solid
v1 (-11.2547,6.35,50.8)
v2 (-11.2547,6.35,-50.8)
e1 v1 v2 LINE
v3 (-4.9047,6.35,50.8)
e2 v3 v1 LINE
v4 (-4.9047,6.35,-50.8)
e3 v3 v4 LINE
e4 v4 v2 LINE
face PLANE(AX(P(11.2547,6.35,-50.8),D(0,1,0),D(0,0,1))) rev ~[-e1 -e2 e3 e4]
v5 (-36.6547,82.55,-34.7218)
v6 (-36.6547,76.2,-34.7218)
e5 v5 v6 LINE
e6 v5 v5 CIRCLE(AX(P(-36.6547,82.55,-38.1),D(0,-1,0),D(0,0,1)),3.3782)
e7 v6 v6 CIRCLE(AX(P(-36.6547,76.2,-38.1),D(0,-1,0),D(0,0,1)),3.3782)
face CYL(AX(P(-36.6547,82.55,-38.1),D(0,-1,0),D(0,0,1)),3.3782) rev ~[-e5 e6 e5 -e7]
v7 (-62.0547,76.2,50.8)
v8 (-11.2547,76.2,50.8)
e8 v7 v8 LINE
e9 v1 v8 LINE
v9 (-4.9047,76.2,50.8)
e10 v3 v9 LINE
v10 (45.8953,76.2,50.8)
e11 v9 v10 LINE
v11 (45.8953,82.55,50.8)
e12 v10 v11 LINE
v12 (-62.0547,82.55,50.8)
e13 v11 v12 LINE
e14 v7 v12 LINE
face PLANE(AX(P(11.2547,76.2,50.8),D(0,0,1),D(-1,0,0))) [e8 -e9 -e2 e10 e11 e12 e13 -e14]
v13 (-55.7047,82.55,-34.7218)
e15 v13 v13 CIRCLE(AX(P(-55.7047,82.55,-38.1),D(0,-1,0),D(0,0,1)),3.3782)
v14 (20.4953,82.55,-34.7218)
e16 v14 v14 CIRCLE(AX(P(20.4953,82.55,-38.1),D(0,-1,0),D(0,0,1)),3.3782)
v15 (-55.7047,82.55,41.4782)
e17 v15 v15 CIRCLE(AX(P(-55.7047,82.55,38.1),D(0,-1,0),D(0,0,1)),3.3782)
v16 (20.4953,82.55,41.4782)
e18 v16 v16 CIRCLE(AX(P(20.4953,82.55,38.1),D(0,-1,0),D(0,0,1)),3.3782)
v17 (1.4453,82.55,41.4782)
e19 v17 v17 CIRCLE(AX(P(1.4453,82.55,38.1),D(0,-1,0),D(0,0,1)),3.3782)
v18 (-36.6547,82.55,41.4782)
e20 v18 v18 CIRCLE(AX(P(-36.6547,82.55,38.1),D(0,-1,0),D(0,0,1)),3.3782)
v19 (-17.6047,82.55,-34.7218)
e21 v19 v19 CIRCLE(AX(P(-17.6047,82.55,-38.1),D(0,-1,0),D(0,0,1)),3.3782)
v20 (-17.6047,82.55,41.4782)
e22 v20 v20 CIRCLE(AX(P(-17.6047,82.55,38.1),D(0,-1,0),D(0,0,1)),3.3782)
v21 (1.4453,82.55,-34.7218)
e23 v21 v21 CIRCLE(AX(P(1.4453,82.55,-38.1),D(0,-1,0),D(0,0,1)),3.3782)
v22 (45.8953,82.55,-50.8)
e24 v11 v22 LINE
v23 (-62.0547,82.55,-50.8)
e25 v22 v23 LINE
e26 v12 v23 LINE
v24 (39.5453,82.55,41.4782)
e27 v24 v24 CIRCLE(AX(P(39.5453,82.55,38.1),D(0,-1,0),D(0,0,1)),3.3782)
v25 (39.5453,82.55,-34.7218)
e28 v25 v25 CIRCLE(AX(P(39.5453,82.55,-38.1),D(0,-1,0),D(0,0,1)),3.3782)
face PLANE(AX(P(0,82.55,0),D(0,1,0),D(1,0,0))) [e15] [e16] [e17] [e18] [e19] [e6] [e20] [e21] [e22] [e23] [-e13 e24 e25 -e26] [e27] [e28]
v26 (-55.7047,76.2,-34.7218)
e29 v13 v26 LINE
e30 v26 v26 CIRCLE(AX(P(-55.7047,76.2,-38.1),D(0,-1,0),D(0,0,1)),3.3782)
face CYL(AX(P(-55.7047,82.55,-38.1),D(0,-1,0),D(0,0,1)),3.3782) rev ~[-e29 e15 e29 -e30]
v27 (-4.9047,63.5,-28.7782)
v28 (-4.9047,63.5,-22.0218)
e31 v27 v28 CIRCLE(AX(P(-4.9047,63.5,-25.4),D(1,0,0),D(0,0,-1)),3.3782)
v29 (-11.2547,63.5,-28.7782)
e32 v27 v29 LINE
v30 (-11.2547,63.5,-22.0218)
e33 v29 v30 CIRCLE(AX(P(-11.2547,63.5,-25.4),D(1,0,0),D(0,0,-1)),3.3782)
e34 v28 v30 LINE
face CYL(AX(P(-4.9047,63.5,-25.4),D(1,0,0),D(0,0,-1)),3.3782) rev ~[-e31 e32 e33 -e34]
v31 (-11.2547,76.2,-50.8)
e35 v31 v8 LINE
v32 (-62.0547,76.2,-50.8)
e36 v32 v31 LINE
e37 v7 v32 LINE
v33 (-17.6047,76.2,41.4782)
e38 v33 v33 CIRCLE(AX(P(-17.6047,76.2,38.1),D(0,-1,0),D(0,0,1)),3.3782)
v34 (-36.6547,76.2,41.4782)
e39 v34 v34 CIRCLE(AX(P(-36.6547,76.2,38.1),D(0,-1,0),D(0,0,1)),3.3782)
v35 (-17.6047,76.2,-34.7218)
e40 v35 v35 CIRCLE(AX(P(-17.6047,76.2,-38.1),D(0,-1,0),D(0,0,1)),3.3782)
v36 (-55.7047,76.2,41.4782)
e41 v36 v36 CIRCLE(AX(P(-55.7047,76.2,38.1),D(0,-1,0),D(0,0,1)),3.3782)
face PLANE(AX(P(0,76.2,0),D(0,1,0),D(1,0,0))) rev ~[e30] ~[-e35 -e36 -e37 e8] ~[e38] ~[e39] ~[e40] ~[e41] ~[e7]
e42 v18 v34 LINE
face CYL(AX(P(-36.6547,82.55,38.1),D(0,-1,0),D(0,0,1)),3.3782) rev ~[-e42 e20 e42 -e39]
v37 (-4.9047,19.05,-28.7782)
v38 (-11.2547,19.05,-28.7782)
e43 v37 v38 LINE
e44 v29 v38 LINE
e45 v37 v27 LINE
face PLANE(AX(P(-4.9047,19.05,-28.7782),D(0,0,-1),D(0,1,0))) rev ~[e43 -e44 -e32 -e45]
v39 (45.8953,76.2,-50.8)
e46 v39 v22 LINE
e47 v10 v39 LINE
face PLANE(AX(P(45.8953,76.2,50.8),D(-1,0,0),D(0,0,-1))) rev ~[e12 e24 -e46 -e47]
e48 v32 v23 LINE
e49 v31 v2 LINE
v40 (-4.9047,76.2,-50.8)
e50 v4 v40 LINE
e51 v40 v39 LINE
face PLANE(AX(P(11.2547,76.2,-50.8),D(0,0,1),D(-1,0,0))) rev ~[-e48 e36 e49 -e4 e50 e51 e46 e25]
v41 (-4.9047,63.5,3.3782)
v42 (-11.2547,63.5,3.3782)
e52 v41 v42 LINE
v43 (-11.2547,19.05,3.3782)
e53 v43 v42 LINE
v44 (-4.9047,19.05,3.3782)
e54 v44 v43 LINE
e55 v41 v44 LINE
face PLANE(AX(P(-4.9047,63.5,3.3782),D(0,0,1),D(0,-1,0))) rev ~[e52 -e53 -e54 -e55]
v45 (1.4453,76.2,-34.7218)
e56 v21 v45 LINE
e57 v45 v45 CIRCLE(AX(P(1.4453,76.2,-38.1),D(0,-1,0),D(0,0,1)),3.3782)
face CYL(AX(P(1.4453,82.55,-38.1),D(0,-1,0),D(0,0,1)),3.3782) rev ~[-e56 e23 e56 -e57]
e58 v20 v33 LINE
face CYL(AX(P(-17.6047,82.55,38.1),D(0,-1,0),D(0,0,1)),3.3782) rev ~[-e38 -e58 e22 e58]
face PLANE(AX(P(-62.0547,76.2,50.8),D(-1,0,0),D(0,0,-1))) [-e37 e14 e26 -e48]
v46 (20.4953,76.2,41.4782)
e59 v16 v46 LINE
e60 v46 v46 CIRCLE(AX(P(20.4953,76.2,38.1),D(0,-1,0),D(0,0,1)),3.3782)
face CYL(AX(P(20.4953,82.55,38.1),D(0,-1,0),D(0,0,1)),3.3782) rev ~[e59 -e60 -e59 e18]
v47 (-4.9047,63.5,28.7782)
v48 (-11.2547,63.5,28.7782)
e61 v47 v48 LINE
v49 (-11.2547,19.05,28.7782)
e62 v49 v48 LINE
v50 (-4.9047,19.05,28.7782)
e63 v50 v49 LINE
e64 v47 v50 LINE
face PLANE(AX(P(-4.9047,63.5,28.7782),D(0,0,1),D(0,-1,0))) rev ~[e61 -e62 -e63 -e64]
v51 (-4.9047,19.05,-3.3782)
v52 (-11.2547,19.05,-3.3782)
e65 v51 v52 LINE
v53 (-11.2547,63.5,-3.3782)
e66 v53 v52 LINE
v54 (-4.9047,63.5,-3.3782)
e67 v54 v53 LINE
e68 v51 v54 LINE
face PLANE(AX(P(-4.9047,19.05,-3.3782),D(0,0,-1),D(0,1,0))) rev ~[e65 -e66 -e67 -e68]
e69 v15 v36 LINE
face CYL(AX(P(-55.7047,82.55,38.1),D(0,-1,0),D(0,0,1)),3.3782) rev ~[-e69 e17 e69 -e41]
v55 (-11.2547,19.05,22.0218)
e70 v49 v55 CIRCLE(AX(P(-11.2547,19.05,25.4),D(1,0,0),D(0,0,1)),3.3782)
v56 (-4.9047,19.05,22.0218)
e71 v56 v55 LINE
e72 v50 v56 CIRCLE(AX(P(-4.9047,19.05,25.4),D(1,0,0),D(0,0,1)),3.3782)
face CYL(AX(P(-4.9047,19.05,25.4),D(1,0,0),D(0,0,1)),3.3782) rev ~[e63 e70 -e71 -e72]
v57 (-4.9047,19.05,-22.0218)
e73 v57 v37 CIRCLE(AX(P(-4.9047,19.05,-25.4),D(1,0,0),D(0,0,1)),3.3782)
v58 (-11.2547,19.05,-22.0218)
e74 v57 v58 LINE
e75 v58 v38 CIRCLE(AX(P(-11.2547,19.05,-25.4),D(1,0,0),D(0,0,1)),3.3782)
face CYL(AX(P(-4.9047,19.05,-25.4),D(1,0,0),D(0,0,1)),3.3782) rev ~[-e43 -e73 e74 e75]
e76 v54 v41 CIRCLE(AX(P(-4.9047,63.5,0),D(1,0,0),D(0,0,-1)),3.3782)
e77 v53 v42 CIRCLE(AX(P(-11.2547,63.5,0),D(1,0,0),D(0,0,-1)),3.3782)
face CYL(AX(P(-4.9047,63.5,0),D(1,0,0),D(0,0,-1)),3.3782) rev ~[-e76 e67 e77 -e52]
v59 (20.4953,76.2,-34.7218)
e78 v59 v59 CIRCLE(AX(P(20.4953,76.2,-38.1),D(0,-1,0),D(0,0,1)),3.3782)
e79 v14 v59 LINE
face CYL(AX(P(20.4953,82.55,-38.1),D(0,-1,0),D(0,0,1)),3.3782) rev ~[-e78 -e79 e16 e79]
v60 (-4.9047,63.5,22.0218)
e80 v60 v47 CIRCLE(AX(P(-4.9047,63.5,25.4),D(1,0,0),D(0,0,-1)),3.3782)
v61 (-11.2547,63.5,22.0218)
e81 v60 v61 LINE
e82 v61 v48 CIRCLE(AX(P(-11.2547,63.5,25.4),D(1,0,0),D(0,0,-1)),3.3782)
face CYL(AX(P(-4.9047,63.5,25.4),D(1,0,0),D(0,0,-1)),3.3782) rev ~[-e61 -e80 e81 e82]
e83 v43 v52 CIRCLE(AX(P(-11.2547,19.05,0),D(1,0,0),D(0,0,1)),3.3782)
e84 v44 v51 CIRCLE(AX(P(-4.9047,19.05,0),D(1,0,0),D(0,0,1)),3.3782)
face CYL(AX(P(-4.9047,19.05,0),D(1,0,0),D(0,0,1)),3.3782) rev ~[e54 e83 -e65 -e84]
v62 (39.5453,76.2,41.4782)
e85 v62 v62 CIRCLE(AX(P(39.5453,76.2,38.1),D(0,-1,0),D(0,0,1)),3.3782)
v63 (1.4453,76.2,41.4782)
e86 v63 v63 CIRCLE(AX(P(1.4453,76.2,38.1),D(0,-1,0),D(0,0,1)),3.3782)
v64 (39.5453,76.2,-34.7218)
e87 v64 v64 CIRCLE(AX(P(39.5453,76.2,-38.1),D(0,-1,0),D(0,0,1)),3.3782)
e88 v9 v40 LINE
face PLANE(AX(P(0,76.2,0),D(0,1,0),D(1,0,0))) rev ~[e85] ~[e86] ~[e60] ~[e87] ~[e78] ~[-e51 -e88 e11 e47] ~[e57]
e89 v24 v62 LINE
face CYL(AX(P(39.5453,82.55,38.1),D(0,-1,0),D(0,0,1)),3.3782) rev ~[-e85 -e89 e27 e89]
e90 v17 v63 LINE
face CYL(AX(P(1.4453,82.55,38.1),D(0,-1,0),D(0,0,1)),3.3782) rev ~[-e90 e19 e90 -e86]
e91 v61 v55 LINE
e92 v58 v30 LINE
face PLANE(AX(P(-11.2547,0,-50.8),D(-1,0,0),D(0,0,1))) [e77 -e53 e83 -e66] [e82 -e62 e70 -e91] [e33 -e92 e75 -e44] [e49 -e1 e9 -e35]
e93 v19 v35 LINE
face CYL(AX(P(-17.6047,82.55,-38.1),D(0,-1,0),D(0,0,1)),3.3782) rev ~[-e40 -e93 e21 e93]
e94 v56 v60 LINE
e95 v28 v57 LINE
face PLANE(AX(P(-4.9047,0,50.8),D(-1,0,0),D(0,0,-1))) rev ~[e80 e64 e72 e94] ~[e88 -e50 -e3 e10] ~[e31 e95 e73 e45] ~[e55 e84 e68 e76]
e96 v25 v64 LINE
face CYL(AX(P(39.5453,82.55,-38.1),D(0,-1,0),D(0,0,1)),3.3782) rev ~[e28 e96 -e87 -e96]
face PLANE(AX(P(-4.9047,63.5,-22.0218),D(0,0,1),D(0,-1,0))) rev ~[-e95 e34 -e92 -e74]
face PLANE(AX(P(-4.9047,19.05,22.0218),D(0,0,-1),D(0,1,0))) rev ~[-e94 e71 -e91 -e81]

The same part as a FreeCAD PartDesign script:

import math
import FreeCAD as App
import Part
import Sketcher
from FreeCAD import Vector
Q = App.Units.Quantity

doc = App.newDocument("Part")
body = doc.addObject("PartDesign::Body", "Body")

sketch1 = body.newObject("Sketcher::SketchObject", "Sketch")
sketch1.AttachmentSupport = (doc.getObject("XZ_Plane"), [""])
sketch1.MapMode = "FlatFace"
sketch1.addGeometry([
    Part.LineSegment(Vector(-11.2547, -50.8, 0), Vector(-11.2547, 50.8, 0)),
    Part.LineSegment(Vector(-11.2547, 50.8, 0), Vector(11.2547, 50.8, 0)),
    Part.LineSegment(Vector(11.2547, 50.8, 0), Vector(11.2547, -50.8, 0)),
    Part.LineSegment(Vector(11.2547, -50.8, 0), Vector(-11.2547, -50.8, 0)),
], False)
sketch1.addConstraint([
    Sketcher.Constraint("Coincident", 0, 2, 1, 1),
    Sketcher.Constraint("Coincident", 1, 2, 2, 1),
    Sketcher.Constraint("Coincident", 2, 2, 3, 1),
    Sketcher.Constraint("Coincident", 3, 2, 0, 1),
    Sketcher.Constraint("Vertical", 0),
    Sketcher.Constraint("Horizontal", 1),
    Sketcher.Constraint("Vertical", 2),
    Sketcher.Constraint("Horizontal", 3),
    Sketcher.Constraint("Symmetric", 0, 2, 2, 2, -1, 1),
    Sketcher.Constraint("DistanceY", 0, 1, 0, 2, Q("4 in")),
    Sketcher.Constraint("DistanceX", 1, 1, 1, 2, Q("0.8862 in")),
])
pad1 = body.newObject("PartDesign::Pad", "Pad")
pad1.Profile = sketch1
pad1.Length = Q("0.25 in")

sketch2 = body.newObject("Sketcher::SketchObject", "Sketch001")
sketch2.AttachmentSupport = (doc.getObject("XZ_Plane"), [""])
sketch2.MapMode = "FlatFace"
sketch2.addGeometry([
    Part.LineSegment(Vector(-11.2547, 50.8, 0), Vector(-4.9047, 50.8, 0)),
    Part.LineSegment(Vector(-4.9047, 50.8, 0), Vector(-4.9047, -50.8, 0)),
    Part.LineSegment(Vector(-4.9047, -50.8, 0), Vector(-11.2547, -50.8, 0)),
    Part.LineSegment(Vector(-11.2547, -50.8, 0), Vector(-11.2547, 50.8, 0)),
], False)
sketch2.addConstraint([
    Sketcher.Constraint("Coincident", 0, 2, 1, 1),
    Sketcher.Constraint("Coincident", 1, 2, 2, 1),
    Sketcher.Constraint("Coincident", 2, 2, 3, 1),
    Sketcher.Constraint("Coincident", 3, 2, 0, 1),
    Sketcher.Constraint("Horizontal", 0),
    Sketcher.Constraint("Vertical", 1),
    Sketcher.Constraint("Horizontal", 2),
    Sketcher.Constraint("Vertical", 3),
    Sketcher.Constraint("DistanceX", 0, 1, 0, 2, Q("0.25 in")),
    Sketcher.Constraint("DistanceY", 1, 2, 1, 1, Q("4 in")),
    Sketcher.Constraint("DistanceY", -1, 1, 0, 2, Q("2 in")),
    Sketcher.Constraint("DistanceX", 0, 2, -1, 1, Q("0.1931 in")),
])
pad2 = body.newObject("PartDesign::Pad", "Pad001")
pad2.Profile = sketch2
pad2.Length = Q("3 in")
pad2.Reversed = True

sketch3 = body.newObject("Sketcher::SketchObject", "Sketch002")
sketch3.AttachmentSupport = (doc.getObject("XZ_Plane"), [""])
sketch3.MapMode = "FlatFace"
sketch3.AttachmentOffset = App.Placement(Vector(0, 0, -3 * 25.4), App.Rotation())
sketch3.addGeometry([
    Part.LineSegment(Vector(45.8953, 50.8, 0), Vector(45.8953, -50.8, 0)),
    Part.LineSegment(Vector(45.8953, -50.8, 0), Vector(-62.0547, -50.8, 0)),
    Part.LineSegment(Vector(-62.0547, -50.8, 0), Vector(-62.0547, 50.8, 0)),
    Part.LineSegment(Vector(-62.0547, 50.8, 0), Vector(45.8953, 50.8, 0)),
], False)
sketch3.addConstraint([
    Sketcher.Constraint("Coincident", 0, 2, 1, 1),
    Sketcher.Constraint("Coincident", 1, 2, 2, 1),
    Sketcher.Constraint("Coincident", 2, 2, 3, 1),
    Sketcher.Constraint("Coincident", 3, 2, 0, 1),
    Sketcher.Constraint("Vertical", 0),
    Sketcher.Constraint("Horizontal", 1),
    Sketcher.Constraint("Vertical", 2),
    Sketcher.Constraint("Horizontal", 3),
    Sketcher.Constraint("DistanceY", 0, 2, -1, 1, Q("2 in")),
    Sketcher.Constraint("DistanceY", -1, 1, 2, 2, Q("2 in")),
    Sketcher.Constraint("DistanceX", 1, 2, 1, 1, Q("4.25 in")),
    Sketcher.Constraint("DistanceX", -1, 1, 0, 2, Q("1.8069 in")),
])
pad3 = body.newObject("PartDesign::Pad", "Pad002")
pad3.Profile = sketch3
pad3.Length = Q("0.25 in")
pad3.Reversed = True

sketch4 = body.newObject("Sketcher::SketchObject", "Sketch003")
sketch4.AttachmentSupport = (doc.getObject("XZ_Plane"), [""])
sketch4.MapMode = "FlatFace"
sketch4.addGeometry([
    Part.Circle(Vector(3.175, 38.1, 0), Vector(0, 0, 1), 2.5527),
    Part.Circle(Vector(3.175, 12.7, 0), Vector(0, 0, 1), 2.5527),
    Part.Circle(Vector(3.175, -12.7, 0), Vector(0, 0, 1), 2.5527),
    Part.Circle(Vector(3.175, -38.1, 0), Vector(0, 0, 1), 2.5527),
], False)
sketch4.addConstraint([
    Sketcher.Constraint("Equal", 0, 1),
    Sketcher.Constraint("Equal", 1, 2),
    Sketcher.Constraint("Equal", 2, 3),
    Sketcher.Constraint("Symmetric", 1, 3, 2, 3, -1),
    Sketcher.Constraint("Symmetric", 0, 3, 3, 3, -1),
    Sketcher.Constraint("Vertical", 0, 3, 1, 3),
    Sketcher.Constraint("Diameter", 0, Q("0.201 in")),
    Sketcher.Constraint("DistanceY", 1, 3, 0, 3, Q("1 in")),
    Sketcher.Constraint("DistanceY", 2, 3, 1, 3, Q("1 in")),
    Sketcher.Constraint("DistanceX", -1, 1, 0, 3, Q("0.125 in")),
])
doc.recompute()
hole = body.newObject("PartDesign::Hole", "Hole")
hole.Profile = sketch4
hole.ThreadType = "None"
hole.Diameter = Q("0.201 in")
hole.DepthType = "ThroughAll"
hole.Reversed = True

sketch5 = body.newObject("Sketcher::SketchObject", "Sketch004")
sketch5.AttachmentSupport = (doc.getObject("XZ_Plane"), [""])
sketch5.MapMode = "FlatFace"
sketch5.AttachmentOffset = App.Placement(Vector(0, 0, -3.25 * 25.4), App.Rotation())
sketch5.addGeometry([
    Part.Circle(Vector(-55.7047, 38.1, 0), Vector(0, 0, 1), 3.3782),
    Part.Circle(Vector(-55.7047, -38.1, 0), Vector(0, 0, 1), 3.3782),
    Part.Circle(Vector(-36.6547, 38.1, 0), Vector(0, 0, 1), 3.3782),
    Part.Circle(Vector(-36.6547, -38.1, 0), Vector(0, 0, 1), 3.3782),
    Part.Circle(Vector(-17.6047, 38.1, 0), Vector(0, 0, 1), 3.3782),
    Part.Circle(Vector(-17.6047, -38.1, 0), Vector(0, 0, 1), 3.3782),
    Part.Circle(Vector(1.4453, 38.1, 0), Vector(0, 0, 1), 3.3782),
    Part.Circle(Vector(1.4453, -38.1, 0), Vector(0, 0, 1), 3.3782),
    Part.Circle(Vector(20.4953, 38.1, 0), Vector(0, 0, 1), 3.3782),
    Part.Circle(Vector(20.4953, -38.1, 0), Vector(0, 0, 1), 3.3782),
    Part.Circle(Vector(39.5453, 38.1, 0), Vector(0, 0, 1), 3.3782),
    Part.Circle(Vector(39.5453, -38.1, 0), Vector(0, 0, 1), 3.3782),
    Part.Circle(Vector(58.5953, 38.1, 0), Vector(0, 0, 1), 3.3782),
    Part.Circle(Vector(58.5953, -38.1, 0), Vector(0, 0, 1), 3.3782),
], False)
sketch5.addConstraint([
    Sketcher.Constraint("Equal", 0, 1),
    Sketcher.Constraint("Equal", 1, 2),
    Sketcher.Constraint("Equal", 2, 3),
    Sketcher.Constraint("Equal", 3, 4),
    Sketcher.Constraint("Equal", 4, 5),
    Sketcher.Constraint("Equal", 5, 6),
    Sketcher.Constraint("Equal", 6, 7),
    Sketcher.Constraint("Equal", 7, 8),
    Sketcher.Constraint("Equal", 8, 9),
    Sketcher.Constraint("Equal", 9, 10),
    Sketcher.Constraint("Equal", 10, 11),
    Sketcher.Constraint("Equal", 11, 12),
    Sketcher.Constraint("Equal", 12, 13),
    Sketcher.Constraint("Symmetric", 0, 3, 1, 3, -1),
    Sketcher.Constraint("Symmetric", 2, 3, 3, 3, -1),
    Sketcher.Constraint("Symmetric", 4, 3, 5, 3, -1),
    Sketcher.Constraint("Symmetric", 6, 3, 7, 3, -1),
    Sketcher.Constraint("Symmetric", 8, 3, 9, 3, -1),
    Sketcher.Constraint("Symmetric", 10, 3, 11, 3, -1),
    Sketcher.Constraint("Symmetric", 12, 3, 13, 3, -1),
    Sketcher.Constraint("Horizontal", 0, 3, 2, 3),
    Sketcher.Constraint("Horizontal", 2, 3, 4, 3),
    Sketcher.Constraint("Horizontal", 4, 3, 6, 3),
    Sketcher.Constraint("Horizontal", 6, 3, 8, 3),
    Sketcher.Constraint("Horizontal", 8, 3, 10, 3),
    Sketcher.Constraint("Horizontal", 10, 3, 12, 3),
    Sketcher.Constraint("Diameter", 0, Q("0.266 in")),
    Sketcher.Constraint("DistanceY", 1, 3, 0, 3, Q("3 in")),
    Sketcher.Constraint("DistanceX", 0, 3, 8, 3, Q("3 in")),
    Sketcher.Constraint("DistanceX", 2, 3, 10, 3, Q("3 in")),
    Sketcher.Constraint("DistanceX", 4, 3, 12, 3, Q("3 in")),
    Sketcher.Constraint("DistanceX", 0, 3, 4, 3, Q("1.5 in")),
    Sketcher.Constraint("DistanceX", 2, 3, 6, 3, Q("1.5 in")),
    Sketcher.Constraint("DistanceX", 0, 3, 2, 3, Q("0.75 in")),
    Sketcher.Constraint("DistanceX", 0, 3, -1, 1, Q("2.1931 in")),
])
doc.recompute()
hole2 = body.newObject("PartDesign::Hole", "Hole001")
hole2.Profile = sketch5
hole2.ThreadType = "None"
hole2.Diameter = Q("0.266 in")
hole2.DepthType = "Dimension"
hole2.Depth = Q("0.25 in")
hole2.DrillPoint = "Flat"
hole2.Reversed = True

sketch6 = body.newObject("Sketcher::SketchObject", "Sketch005")
sketch6.AttachmentSupport = (doc.getObject("YZ_Plane"), [""])
sketch6.MapMode = "FlatFace"
sketch6.AttachmentOffset = App.Placement(Vector(0, 0, 0.4430984 * 25.4), App.Rotation())
sketch6.addGeometry([
    Part.LineSegment(Vector(-6.35, 50.8, 0), Vector(-6.35, -50.8, 0)),
    Part.LineSegment(Vector(-6.35, -50.8, 0), Vector(6.35, -50.8, 0)),
    Part.LineSegment(Vector(6.35, -50.8, 0), Vector(6.35, 50.8, 0)),
    Part.LineSegment(Vector(6.35, 50.8, 0), Vector(-6.35, 50.8, 0)),
], False)
sketch6.addConstraint([
    Sketcher.Constraint("Coincident", 0, 2, 1, 1),
    Sketcher.Constraint("Coincident", 1, 2, 2, 1),
    Sketcher.Constraint("Coincident", 2, 2, 3, 1),
    Sketcher.Constraint("Coincident", 3, 2, 0, 1),
    Sketcher.Constraint("Vertical", 0),
    Sketcher.Constraint("Horizontal", 1),
    Sketcher.Constraint("Vertical", 2),
    Sketcher.Constraint("Horizontal", 3),
    Sketcher.Constraint("Symmetric", 0, 2, 2, 2, -1, 1),
    Sketcher.Constraint("DistanceX", 1, 1, 1, 2, Q("0.5 in")),
    Sketcher.Constraint("DistanceY", 0, 2, 0, 1, Q("4 in")),
])
pocket1 = body.newObject("PartDesign::Pocket", "Pocket")
pocket1.Profile = sketch6
pocket1.Type = "ThroughAll"

sketch7 = body.newObject("Sketcher::SketchObject", "Sketch006")
sketch7.AttachmentSupport = (doc.getObject("YZ_Plane"), [""])
sketch7.MapMode = "FlatFace"
sketch7.AttachmentOffset = App.Placement(Vector(0, 0, -0.1930984 * 25.4), App.Rotation())
sketch7.addGeometry([
    Part.ArcOfCircle(Part.Circle(Vector(63.5, 25.4, 0), Vector(0, 0, 1), 3.3782), math.radians(-90), math.radians(90)),
    Part.LineSegment(Vector(63.5, 28.7782, 0), Vector(19.05, 28.7782, 0)),
    Part.ArcOfCircle(Part.Circle(Vector(19.05, 25.4, 0), Vector(0, 0, 1), 3.3782), math.radians(90), math.radians(270)),
    Part.LineSegment(Vector(19.05, 22.0218, 0), Vector(63.5, 22.0218, 0)),
    Part.ArcOfCircle(Part.Circle(Vector(63.5, 0, 0), Vector(0, 0, 1), 3.3782), math.radians(-90), math.radians(90)),
    Part.LineSegment(Vector(63.5, 3.3782, 0), Vector(19.05, 3.3782, 0)),
    Part.ArcOfCircle(Part.Circle(Vector(19.05, 0, 0), Vector(0, 0, 1), 3.3782), math.radians(90), math.radians(270)),
    Part.LineSegment(Vector(19.05, -3.3782, 0), Vector(63.5, -3.3782, 0)),
    Part.ArcOfCircle(Part.Circle(Vector(63.5, -25.4, 0), Vector(0, 0, 1), 3.3782), math.radians(-90), math.radians(90)),
    Part.LineSegment(Vector(63.5, -22.0218, 0), Vector(19.05, -22.0218, 0)),
    Part.ArcOfCircle(Part.Circle(Vector(19.05, -25.4, 0), Vector(0, 0, 1), 3.3782), math.radians(90), math.radians(270)),
    Part.LineSegment(Vector(19.05, -28.7782, 0), Vector(63.5, -28.7782, 0)),
], False)
sketch7.addConstraint([
    Sketcher.Constraint("Tangent", 0, 2, 1, 1),
    Sketcher.Constraint("Tangent", 1, 2, 2, 1),
    Sketcher.Constraint("Tangent", 2, 2, 3, 1),
    Sketcher.Constraint("Tangent", 3, 2, 0, 1),
    Sketcher.Constraint("Tangent", 4, 2, 5, 1),
    Sketcher.Constraint("Tangent", 5, 2, 6, 1),
    Sketcher.Constraint("Tangent", 6, 2, 7, 1),
    Sketcher.Constraint("Tangent", 7, 2, 4, 1),
    Sketcher.Constraint("Tangent", 8, 2, 9, 1),
    Sketcher.Constraint("Tangent", 9, 2, 10, 1),
    Sketcher.Constraint("Tangent", 10, 2, 11, 1),
    Sketcher.Constraint("Tangent", 11, 2, 8, 1),
    Sketcher.Constraint("Horizontal", 1),
    Sketcher.Constraint("Horizontal", 3),
    Sketcher.Constraint("Horizontal", 5),
    Sketcher.Constraint("Horizontal", 7),
    Sketcher.Constraint("Horizontal", 9),
    Sketcher.Constraint("Horizontal", 11),
    Sketcher.Constraint("Equal", 2, 4),
    Sketcher.Constraint("Equal", 6, 8),
    Sketcher.Constraint("Symmetric", 0, 3, 8, 3, -1),
    Sketcher.Constraint("PointOnObject", 4, 3, -1),
    Sketcher.Constraint("Vertical", 0, 3, 4, 3),
    Sketcher.Constraint("Vertical", 2, 3, 6, 3),
    Sketcher.Constraint("Vertical", 6, 3, 10, 3),
    Sketcher.Constraint("DistanceY", -1, 1, 0, 3, Q("1 in")),
    Sketcher.Constraint("Radius", 0, Q("0.133 in")),
    Sketcher.Constraint("DistanceX", 1, 2, 1, 1, Q("1.75 in")),
    Sketcher.Constraint("DistanceX", -1, 1, 0, 3, Q("2.5 in")),
])
pocket2 = body.newObject("PartDesign::Pocket", "Pocket001")
pocket2.Profile = sketch7
pocket2.Type = "ThroughAll"

doc.recompute()
